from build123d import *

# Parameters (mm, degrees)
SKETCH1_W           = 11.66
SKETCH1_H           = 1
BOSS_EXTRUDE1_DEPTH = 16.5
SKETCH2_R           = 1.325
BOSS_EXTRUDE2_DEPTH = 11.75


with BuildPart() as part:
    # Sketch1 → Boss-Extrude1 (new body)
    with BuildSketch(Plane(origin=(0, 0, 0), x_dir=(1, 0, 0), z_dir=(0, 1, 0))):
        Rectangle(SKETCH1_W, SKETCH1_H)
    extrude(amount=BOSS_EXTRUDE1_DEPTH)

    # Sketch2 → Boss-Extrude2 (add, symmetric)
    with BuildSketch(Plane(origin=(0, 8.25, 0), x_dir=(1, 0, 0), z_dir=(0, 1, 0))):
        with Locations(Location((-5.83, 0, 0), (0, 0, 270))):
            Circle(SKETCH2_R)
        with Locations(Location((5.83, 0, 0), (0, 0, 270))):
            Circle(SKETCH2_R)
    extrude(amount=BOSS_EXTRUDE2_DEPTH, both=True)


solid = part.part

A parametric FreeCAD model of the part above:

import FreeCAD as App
import Part
import Sketcher
from FreeCAD import Vector
Q = App.Units.Quantity


def add_polygon(sketch, points):
    """Adds a closed chain of lines whose ends are joined by coincident constraints."""
    first, n = sketch.GeometryCount, len(points)
    for a, b in zip(points, points[1:] + points[:1]):
        sketch.addGeometry(Part.LineSegment(App.Vector(*a, 0), App.Vector(*b, 0)), False)
    for i in range(n):
        sketch.addConstraint(Sketcher.Constraint("Coincident", first + i, 2, first + (i + 1) % n, 1))

doc = App.newDocument("Part")
params = doc.addObject("Spreadsheet::Sheet", "Params")
for row, (alias, value) in enumerate([
    ("sketch1_height", "1 mm"),
    ("sketch1_width", "11.66 mm"),
    ("pad1_length", "16.5 mm"),
    ("sketch2_diameter", "2.65 mm"),
    ("pad2_length", "23.5 mm"),
], start=1):
    params.set(f"A{row}", alias)
    params.set(f"B{row}", "=" + value)
    params.setAlias(f"B{row}", alias)

body = doc.addObject("PartDesign::Body", "Body")

# Sketch on XZ plane
sketch1 = body.newObject("Sketcher::SketchObject", "Sketch")
sketch1.AttachmentSupport = (doc.getObject("XZ_Plane"), [""])
sketch1.MapMode = "FlatFace"
add_polygon(sketch1, [(-5.83, -0.5), (-5.83, 0.5), (5.83, 0.5), (5.83, -0.5)])  # lines 0-3
sketch1.addConstraint([
    Sketcher.Constraint("Vertical", 0),
    Sketcher.Constraint("Horizontal", 1),
    Sketcher.Constraint("Vertical", 2),
    Sketcher.Constraint("Horizontal", 3),
    Sketcher.Constraint("Symmetric", 0, 2, 2, 2, -1, 1),
    Sketcher.Constraint("DistanceY", 0, 1, 0, 2, Q("1 mm")),
    Sketcher.Constraint("DistanceX", 1, 1, 1, 2, Q("11.66 mm")),
])
sketch1.setExpression("Constraints[9]", "Params.sketch1_height")
sketch1.setExpression("Constraints[10]", "Params.sketch1_width")
pad1 = body.newObject("PartDesign::Pad", "Pad")
pad1.Profile = sketch1
pad1.setExpression("Length", "Params.pad1_length")
pad1.Reversed = True

# Sketch on XZ plane
sketch2 = body.newObject("Sketcher::SketchObject", "Sketch001")
sketch2.AttachmentSupport = (doc.getObject("XZ_Plane"), [""])
sketch2.MapMode = "FlatFace"
sketch2.AttachmentOffset = App.Placement(Vector(0, 0, -8.25), App.Rotation())
sketch2.addGeometry([
    Part.Circle(Vector(-5.83, 0, 0), Vector(0, 0, 1), 1.325),
    Part.Circle(Vector(5.83, 0, 0), Vector(0, 0, 1), 1.325),
], False)
sketch2.addConstraint([
    Sketcher.Constraint("Equal", 0, 1),
    Sketcher.Constraint("Symmetric", 0, 3, 1, 3, -1, 1),
    Sketcher.Constraint("PointOnObject", 0, 3, -1),
    Sketcher.Constraint("Diameter", 0, Q("2.65 mm")),
    Sketcher.Constraint("DistanceX", 0, 3, -1, 1, Q("5.83 mm")),
])
sketch2.setExpression("Constraints[3]", "Params.sketch2_diameter")
pad2 = body.newObject("PartDesign::Pad", "Pad001")
pad2.Profile = sketch2
pad2.setExpression("Length", "Params.pad2_length")
pad2.Midplane = True

doc.recompute()
